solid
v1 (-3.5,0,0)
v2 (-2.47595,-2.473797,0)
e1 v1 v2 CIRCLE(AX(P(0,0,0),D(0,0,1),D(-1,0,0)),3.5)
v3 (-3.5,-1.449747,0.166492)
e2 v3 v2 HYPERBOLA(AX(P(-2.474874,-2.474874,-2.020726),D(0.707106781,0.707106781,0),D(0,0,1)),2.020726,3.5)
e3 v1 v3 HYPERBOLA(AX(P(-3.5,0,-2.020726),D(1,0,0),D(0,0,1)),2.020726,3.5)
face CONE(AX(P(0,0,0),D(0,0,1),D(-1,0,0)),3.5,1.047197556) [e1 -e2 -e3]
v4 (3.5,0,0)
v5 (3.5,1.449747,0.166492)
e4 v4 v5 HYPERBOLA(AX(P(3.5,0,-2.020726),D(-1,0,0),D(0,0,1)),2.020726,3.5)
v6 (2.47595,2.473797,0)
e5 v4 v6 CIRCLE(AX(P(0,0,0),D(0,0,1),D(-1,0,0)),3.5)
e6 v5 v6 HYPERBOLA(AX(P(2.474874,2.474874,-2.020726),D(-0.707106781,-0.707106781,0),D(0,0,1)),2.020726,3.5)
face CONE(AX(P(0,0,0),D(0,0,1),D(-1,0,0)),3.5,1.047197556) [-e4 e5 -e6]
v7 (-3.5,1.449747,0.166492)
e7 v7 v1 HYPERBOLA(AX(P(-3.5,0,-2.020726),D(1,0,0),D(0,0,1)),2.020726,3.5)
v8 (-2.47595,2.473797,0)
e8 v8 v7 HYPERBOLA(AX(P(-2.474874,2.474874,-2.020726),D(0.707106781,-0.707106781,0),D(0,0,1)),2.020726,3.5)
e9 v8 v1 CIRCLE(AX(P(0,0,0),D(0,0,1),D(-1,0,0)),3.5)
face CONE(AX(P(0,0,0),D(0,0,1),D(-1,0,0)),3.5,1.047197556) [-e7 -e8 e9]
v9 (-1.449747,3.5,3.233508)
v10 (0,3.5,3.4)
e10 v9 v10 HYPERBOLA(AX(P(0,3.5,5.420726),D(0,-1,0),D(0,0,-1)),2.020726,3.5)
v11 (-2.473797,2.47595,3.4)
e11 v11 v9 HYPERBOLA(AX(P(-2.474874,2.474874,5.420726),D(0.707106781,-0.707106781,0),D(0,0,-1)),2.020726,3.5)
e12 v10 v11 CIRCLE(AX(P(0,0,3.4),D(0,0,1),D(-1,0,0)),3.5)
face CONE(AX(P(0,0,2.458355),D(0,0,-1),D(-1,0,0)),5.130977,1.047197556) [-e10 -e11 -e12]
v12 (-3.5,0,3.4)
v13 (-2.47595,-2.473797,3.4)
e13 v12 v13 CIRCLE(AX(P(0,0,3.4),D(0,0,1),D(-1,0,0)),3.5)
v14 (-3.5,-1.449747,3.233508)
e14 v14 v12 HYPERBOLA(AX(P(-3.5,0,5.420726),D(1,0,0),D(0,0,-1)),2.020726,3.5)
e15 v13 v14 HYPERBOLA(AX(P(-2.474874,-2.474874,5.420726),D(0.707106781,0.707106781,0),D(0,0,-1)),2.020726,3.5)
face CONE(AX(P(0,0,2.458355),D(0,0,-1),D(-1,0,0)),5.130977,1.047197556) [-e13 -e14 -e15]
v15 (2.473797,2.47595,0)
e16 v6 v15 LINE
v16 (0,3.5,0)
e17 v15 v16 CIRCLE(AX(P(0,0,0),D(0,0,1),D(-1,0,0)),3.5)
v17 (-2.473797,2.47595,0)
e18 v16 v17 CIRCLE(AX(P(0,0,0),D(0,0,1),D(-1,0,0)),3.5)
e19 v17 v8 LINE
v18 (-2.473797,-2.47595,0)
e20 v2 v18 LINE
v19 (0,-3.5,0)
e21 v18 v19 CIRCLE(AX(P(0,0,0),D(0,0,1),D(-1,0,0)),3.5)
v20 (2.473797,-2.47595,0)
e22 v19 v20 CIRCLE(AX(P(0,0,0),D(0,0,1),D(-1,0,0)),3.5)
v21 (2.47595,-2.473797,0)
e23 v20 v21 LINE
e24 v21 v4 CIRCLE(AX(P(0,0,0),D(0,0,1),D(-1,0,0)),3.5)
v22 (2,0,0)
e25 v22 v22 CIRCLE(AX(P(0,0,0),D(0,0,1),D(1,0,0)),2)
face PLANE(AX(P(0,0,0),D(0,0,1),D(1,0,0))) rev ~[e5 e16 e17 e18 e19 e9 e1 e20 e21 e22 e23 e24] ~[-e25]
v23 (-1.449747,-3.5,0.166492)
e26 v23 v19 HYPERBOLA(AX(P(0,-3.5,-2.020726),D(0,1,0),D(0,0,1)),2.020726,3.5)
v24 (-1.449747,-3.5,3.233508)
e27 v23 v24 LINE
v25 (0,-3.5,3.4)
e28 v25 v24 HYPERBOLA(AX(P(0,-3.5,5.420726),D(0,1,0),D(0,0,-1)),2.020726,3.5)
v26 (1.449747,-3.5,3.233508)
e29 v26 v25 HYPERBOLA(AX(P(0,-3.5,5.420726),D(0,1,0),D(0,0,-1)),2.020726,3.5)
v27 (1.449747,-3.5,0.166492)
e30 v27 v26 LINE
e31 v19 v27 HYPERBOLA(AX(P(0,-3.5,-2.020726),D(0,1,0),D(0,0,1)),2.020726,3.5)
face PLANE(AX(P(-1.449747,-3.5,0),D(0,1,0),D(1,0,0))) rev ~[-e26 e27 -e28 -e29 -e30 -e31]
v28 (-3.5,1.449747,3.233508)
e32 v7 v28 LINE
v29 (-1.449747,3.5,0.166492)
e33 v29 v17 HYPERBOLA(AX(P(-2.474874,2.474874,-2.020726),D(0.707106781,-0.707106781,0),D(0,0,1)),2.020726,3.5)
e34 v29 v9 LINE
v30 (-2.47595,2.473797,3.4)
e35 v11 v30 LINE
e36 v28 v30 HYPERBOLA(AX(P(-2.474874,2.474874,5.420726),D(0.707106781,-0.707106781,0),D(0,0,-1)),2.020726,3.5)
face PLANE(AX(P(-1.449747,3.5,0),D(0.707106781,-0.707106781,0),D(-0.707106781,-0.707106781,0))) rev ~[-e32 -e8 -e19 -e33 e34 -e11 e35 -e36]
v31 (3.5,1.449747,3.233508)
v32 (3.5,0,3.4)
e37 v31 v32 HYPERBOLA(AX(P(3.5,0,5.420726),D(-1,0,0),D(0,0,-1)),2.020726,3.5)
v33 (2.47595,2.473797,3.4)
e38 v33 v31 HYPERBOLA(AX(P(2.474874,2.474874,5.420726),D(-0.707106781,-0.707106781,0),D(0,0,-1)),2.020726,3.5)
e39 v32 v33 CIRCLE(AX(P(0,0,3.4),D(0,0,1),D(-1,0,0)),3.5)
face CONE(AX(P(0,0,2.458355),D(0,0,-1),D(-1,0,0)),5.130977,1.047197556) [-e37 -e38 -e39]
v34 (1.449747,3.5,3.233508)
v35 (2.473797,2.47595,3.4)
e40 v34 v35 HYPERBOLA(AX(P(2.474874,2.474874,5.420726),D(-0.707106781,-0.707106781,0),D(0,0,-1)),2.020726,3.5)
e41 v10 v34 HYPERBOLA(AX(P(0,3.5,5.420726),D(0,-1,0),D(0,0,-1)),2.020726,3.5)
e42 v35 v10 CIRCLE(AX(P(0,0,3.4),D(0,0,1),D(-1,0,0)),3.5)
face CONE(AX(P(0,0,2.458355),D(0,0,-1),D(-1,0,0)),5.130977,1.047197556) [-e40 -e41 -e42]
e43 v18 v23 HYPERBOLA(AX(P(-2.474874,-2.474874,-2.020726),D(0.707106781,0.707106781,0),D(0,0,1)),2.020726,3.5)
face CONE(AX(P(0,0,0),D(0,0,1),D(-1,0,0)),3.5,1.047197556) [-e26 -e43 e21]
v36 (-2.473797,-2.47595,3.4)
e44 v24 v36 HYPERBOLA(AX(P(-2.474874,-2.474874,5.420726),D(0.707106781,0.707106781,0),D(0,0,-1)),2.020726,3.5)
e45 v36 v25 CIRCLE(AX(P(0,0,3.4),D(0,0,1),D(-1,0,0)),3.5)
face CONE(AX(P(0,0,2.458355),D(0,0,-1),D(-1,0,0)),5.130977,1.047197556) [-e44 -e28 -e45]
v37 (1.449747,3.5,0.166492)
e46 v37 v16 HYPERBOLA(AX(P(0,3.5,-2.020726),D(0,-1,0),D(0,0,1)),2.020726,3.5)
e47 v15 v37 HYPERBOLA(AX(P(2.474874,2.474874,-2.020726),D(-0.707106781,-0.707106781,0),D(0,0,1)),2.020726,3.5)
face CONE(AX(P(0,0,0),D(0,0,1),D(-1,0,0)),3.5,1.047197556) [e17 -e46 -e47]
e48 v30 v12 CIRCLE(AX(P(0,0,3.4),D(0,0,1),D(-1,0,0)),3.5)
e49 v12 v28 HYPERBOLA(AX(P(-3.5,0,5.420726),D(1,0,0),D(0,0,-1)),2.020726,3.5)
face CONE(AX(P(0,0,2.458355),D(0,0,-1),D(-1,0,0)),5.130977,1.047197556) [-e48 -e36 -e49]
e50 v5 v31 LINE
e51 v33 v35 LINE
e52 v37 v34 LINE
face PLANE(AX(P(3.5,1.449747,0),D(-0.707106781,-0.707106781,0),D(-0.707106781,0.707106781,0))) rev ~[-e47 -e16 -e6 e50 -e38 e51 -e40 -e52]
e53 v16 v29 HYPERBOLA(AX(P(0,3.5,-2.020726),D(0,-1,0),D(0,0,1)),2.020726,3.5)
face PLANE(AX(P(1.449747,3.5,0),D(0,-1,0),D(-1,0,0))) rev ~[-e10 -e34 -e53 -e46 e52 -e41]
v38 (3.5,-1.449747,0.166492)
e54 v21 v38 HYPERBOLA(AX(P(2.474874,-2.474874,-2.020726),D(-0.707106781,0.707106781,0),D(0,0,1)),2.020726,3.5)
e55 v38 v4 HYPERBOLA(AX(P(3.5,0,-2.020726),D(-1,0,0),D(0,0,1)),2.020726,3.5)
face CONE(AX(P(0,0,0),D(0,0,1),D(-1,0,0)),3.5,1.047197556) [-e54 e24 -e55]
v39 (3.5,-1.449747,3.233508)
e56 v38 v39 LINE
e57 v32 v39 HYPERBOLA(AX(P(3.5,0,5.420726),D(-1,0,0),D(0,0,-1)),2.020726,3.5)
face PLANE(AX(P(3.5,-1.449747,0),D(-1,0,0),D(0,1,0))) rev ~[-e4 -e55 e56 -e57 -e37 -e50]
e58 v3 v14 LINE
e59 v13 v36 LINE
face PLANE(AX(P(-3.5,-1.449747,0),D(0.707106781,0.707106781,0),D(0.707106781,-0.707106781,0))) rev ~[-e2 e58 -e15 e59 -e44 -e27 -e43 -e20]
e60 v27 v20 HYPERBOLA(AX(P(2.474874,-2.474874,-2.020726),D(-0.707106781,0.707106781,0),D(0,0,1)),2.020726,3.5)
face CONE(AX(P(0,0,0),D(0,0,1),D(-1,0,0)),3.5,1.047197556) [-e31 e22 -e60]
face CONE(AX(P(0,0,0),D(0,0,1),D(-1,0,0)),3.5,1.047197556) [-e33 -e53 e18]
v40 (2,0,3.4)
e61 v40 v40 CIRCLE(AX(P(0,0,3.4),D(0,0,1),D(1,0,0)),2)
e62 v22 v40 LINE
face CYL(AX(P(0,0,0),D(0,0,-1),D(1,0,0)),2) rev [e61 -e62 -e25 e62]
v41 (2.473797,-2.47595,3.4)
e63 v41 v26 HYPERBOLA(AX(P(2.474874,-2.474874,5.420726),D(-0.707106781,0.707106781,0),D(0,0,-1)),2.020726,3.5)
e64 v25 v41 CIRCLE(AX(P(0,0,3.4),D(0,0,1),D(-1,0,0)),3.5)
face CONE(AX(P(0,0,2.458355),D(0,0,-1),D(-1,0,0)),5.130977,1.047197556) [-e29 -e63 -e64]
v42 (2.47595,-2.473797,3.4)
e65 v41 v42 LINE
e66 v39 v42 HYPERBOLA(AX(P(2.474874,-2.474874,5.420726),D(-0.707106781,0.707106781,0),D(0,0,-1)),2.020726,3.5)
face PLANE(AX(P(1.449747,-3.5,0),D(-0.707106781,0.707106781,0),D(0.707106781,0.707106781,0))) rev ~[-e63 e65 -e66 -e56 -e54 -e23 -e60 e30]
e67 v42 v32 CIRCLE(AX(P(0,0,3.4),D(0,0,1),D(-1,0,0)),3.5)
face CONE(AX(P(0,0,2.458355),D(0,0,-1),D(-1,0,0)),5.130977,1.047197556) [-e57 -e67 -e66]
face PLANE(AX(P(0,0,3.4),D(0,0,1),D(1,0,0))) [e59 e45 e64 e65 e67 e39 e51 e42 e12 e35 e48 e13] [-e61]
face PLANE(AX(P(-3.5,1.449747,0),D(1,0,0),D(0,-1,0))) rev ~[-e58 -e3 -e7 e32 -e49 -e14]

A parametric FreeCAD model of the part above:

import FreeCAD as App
import Part
import Sketcher

V = App.Vector
Q = App.Units.Quantity


def add_polygon(sketch, points):
    """Adds a closed chain of lines whose ends are joined by coincident constraints."""
    first, n = sketch.GeometryCount, len(points)
    for a, b in zip(points, points[1:] + points[:1]):
        sketch.addGeometry(Part.LineSegment(App.Vector(*a, 0), App.Vector(*b, 0)), False)
    for i in range(n):
        sketch.addConstraint(Sketcher.Constraint("Coincident", first + i, 2, first + (i + 1) % n, 1))

doc = App.newDocument("Part")
body = doc.addObject("PartDesign::Body", "Body")

# Sketch on XY plane
sketch1 = body.newObject("Sketcher::SketchObject", "Sketch")
sketch1.AttachmentSupport = (doc.getObject("XY_Plane"), [""])
sketch1.MapMode = "FlatFace"
add_polygon(sketch1, [(1.449747, -3.5), (3.5, -1.449747), (3.5, 1.449747), (1.449747, 3.5), (-1.449747, 3.5), (-3.5, 1.449747), (-3.5, -1.449747), (-1.449747, -3.5)])  # lines 0-7
sketch1.addGeometry(Part.Circle(V(0, 0, 0), V(0, 0, 1), 2), False)  # 8
sketch1.addConstraint(Sketcher.Constraint("Vertical", 1))
sketch1.addConstraint(Sketcher.Constraint("Horizontal", 3))
sketch1.addConstraint(Sketcher.Constraint("Vertical", 5))
sketch1.addConstraint(Sketcher.Constraint("Horizontal", 7))
sketch1.addConstraint(Sketcher.Constraint("Coincident", 8, 3, -1, 1))
sketch1.addConstraint(Sketcher.Constraint("Symmetric", 0, 2, 4, 2, -1, 1))
sketch1.addConstraint(Sketcher.Constraint("Symmetric", 2, 2, 6, 2, -1, 1))
sketch1.addConstraint(Sketcher.Constraint("Perpendicular", 0, 2))
sketch1.addConstraint(Sketcher.Constraint("Perpendicular", 2, 4))
sketch1.addConstraint(Sketcher.Constraint("Perpendicular", 4, 6))
sketch1.addConstraint(Sketcher.Constraint("Horizontal", 1, 2, 4, 2))
sketch1.addConstraint(Sketcher.Constraint("Vertical", 3, 2, 6, 2))
sketch1.addConstraint(Sketcher.Constraint("Equal", 7, 1))
sketch1.addConstraint(Sketcher.Constraint("Diameter", 8, Q("4 mm")))
sketch1.addConstraint(Sketcher.Constraint("DistanceX", 4, 2, 1, 2, Q("7 mm")))
sketch1.addConstraint(Sketcher.Constraint("DistanceX", 3, 2, 3, 1, Q("2.899494 mm")))
pad1 = body.newObject("PartDesign::Pad", "Pad")
pad1.Profile = sketch1
pad1.Length = 3.4

# Sketch on XZ plane
sketch2 = body.newObject("Sketcher::SketchObject", "Sketch001")
sketch2.AttachmentSupport = (doc.getObject("XZ_Plane"), [""])
sketch2.MapMode = "FlatFace"
add_polygon(sketch2, [(-5.130977, 2.458355), (-3.5, 3.4), (-5.130977, 3.4)])  # lines 0-2
add_polygon(sketch2, [(-3.5, 0), (-5.130977, 0.941645), (-5.130977, 0)])  # lines 3-5
sketch2.addConstraint(Sketcher.Constraint("Horizontal", 1))
sketch2.addConstraint(Sketcher.Constraint("Vertical", 2))
sketch2.addConstraint(Sketcher.Constraint("Vertical", 4))
sketch2.addConstraint(Sketcher.Constraint("Horizontal", 5))
sketch2.addConstraint(Sketcher.Constraint("PointOnObject", 4, 2, -1))
sketch2.addConstraint(Sketcher.Constraint("Vertical", 2, 2, 3, 2))
sketch2.addConstraint(Sketcher.Constraint("Vertical", 0, 2, 5, 2))
sketch2.addConstraint(Sketcher.Constraint("Equal", 2, 4))
sketch2.addConstraint(Sketcher.Constraint("Angle", 0, Q("30 deg")))
sketch2.addConstraint(Sketcher.Constraint("DistanceX", 0, 2, -1, 1, Q("3.5 mm")))
sketch2.addConstraint(Sketcher.Constraint("DistanceY", -1, 1, 0, 2, Q("3.4 mm")))
sketch2.addConstraint(Sketcher.Constraint("Distance", 0, Q("1.88329 mm")))
groove = body.newObject("PartDesign::Groove", "Groove")
groove.Profile = sketch2
groove.ReferenceAxis = (sketch2, ["V_Axis"])
groove.Angle = 360

doc.recompute()
